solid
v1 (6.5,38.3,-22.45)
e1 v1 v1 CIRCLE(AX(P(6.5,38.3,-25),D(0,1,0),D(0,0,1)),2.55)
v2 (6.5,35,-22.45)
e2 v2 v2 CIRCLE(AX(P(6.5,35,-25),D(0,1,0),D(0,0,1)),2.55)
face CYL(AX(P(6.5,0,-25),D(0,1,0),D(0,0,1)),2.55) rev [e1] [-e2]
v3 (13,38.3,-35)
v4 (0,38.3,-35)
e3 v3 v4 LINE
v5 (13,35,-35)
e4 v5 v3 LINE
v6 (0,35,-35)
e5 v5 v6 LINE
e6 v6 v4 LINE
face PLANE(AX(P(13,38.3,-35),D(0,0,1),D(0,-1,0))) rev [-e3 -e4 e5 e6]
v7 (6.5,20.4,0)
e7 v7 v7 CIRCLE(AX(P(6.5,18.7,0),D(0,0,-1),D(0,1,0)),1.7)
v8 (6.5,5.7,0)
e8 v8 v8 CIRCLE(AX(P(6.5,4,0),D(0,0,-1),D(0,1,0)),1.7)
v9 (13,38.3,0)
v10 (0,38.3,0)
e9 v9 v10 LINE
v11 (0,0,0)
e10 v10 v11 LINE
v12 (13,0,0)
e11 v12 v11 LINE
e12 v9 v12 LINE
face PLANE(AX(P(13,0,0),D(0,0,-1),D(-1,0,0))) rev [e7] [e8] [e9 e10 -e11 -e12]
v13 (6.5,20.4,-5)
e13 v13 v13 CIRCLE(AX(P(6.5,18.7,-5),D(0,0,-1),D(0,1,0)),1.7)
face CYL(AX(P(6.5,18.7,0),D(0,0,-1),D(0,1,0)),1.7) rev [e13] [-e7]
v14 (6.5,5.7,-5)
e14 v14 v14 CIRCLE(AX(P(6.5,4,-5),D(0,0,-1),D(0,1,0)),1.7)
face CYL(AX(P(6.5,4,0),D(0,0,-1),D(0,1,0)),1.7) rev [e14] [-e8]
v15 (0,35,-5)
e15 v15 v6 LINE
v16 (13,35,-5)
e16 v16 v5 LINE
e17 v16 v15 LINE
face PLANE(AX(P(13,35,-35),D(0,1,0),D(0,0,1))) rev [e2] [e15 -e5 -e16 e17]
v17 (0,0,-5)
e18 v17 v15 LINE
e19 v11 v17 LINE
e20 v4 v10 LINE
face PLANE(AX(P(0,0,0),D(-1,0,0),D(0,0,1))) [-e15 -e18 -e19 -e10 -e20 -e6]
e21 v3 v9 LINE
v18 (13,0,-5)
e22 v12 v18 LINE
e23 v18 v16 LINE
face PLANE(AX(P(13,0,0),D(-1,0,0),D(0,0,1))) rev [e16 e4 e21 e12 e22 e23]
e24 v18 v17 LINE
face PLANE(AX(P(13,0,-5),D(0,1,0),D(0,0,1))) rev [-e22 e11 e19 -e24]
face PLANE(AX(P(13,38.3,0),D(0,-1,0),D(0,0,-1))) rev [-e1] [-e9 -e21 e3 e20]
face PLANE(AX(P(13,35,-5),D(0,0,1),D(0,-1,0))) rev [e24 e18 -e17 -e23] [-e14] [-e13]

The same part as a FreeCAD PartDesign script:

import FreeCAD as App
import Part
import Sketcher
Q = App.Units.Quantity


def add_polygon(sketch, points):
    """Adds a closed chain of lines whose ends are joined by coincident constraints."""
    first, n = sketch.GeometryCount, len(points)
    for a, b in zip(points, points[1:] + points[:1]):
        sketch.addGeometry(Part.LineSegment(App.Vector(*a, 0), App.Vector(*b, 0)), False)
    for i in range(n):
        sketch.addConstraint(Sketcher.Constraint("Coincident", first + i, 2, first + (i + 1) % n, 1))

doc = App.newDocument("Part")
body = doc.addObject("PartDesign::Body", "Body")

# Sketch on YZ plane
sketch1 = body.newObject("Sketcher::SketchObject", "Sketch")
sketch1.AttachmentSupport = (doc.getObject("YZ_Plane"), [""])
sketch1.MapMode = "FlatFace"
add_polygon(sketch1, [(38.3, 0), (0, 0), (0, -5), (35, -5), (35, -35), (38.3, -35)])  # lines 0-5
sketch1.addConstraint([
    Sketcher.Constraint("Horizontal", 0),
    Sketcher.Constraint("Vertical", 1),
    Sketcher.Constraint("Horizontal", 2),
    Sketcher.Constraint("Vertical", 3),
    Sketcher.Constraint("Horizontal", 4),
    Sketcher.Constraint("Vertical", 5),
    Sketcher.Constraint("Coincident", 0, 2, -1, 1),
    Sketcher.Constraint("Equal", 2, 5),
    Sketcher.Constraint("DistanceX", 2, 1, 2, 2, Q("35 mm")),
    Sketcher.Constraint("DistanceY", 1, 2, 1, 1, Q("5 mm")),
    Sketcher.Constraint("DistanceX", 0, 2, 0, 1, Q("38.3 mm")),
])
pad1 = body.newObject("PartDesign::Pad", "Pad")
pad1.Profile = sketch1
pad1.Length = 13

# Sketch on XY plane
sketch2 = body.newObject("Sketcher::SketchObject", "Sketch001")
sketch2.AttachmentSupport = (doc.getObject("XY_Plane"), [""])
sketch2.MapMode = "FlatFace"
sketch2.AttachmentOffset = App.Placement(App.Vector(0, 0, -5), App.Rotation())
sketch2.addGeometry([
    Part.Circle(App.Vector(6.5, 18.7, 0), App.Vector(0, 0, 1), 1.7),
    Part.Circle(App.Vector(6.5, 4, 0), App.Vector(0, 0, 1), 1.7),
], False)
sketch2.addConstraint([
    Sketcher.Constraint("Equal", 0, 1),
    Sketcher.Constraint("Vertical", 0, 3, 1, 3),
    Sketcher.Constraint("Diameter", 0, Q("3.4 mm")),
    Sketcher.Constraint("DistanceY", -1, 1, 1, 3, Q("4 mm")),
    Sketcher.Constraint("DistanceX", -1, 1, 0, 3, Q("6.5 mm")),
    Sketcher.Constraint("DistanceY", -1, 1, 0, 3, Q("18.7 mm")),
])
pocket1 = body.newObject("PartDesign::Pocket", "Pocket")
pocket1.Profile = sketch2
pocket1.Type = "ThroughAll"
pocket1.Reversed = True

# Sketch on XZ plane
sketch3 = body.newObject("Sketcher::SketchObject", "Sketch002")
sketch3.AttachmentSupport = (doc.getObject("XZ_Plane"), [""])
sketch3.MapMode = "FlatFace"
sketch3.AttachmentOffset = App.Placement(App.Vector(0, 0, -38.3), App.Rotation())
sketch3.addGeometry(Part.Circle(App.Vector(6.5, -25, 0), App.Vector(0, 0, 1), 2.55), False)
sketch3.addConstraint([
    Sketcher.Constraint("Diameter", 0, Q("5.1 mm")),
    Sketcher.Constraint("DistanceY", 0, 3, -1, 1, Q("25 mm")),
    Sketcher.Constraint("DistanceX", -1, 1, 0, 3, Q("6.5 mm")),
])
pocket2 = body.newObject("PartDesign::Pocket", "Pocket001")
pocket2.Profile = sketch3
pocket2.Type = "ThroughAll"
pocket2.Reversed = True

doc.recompute()
